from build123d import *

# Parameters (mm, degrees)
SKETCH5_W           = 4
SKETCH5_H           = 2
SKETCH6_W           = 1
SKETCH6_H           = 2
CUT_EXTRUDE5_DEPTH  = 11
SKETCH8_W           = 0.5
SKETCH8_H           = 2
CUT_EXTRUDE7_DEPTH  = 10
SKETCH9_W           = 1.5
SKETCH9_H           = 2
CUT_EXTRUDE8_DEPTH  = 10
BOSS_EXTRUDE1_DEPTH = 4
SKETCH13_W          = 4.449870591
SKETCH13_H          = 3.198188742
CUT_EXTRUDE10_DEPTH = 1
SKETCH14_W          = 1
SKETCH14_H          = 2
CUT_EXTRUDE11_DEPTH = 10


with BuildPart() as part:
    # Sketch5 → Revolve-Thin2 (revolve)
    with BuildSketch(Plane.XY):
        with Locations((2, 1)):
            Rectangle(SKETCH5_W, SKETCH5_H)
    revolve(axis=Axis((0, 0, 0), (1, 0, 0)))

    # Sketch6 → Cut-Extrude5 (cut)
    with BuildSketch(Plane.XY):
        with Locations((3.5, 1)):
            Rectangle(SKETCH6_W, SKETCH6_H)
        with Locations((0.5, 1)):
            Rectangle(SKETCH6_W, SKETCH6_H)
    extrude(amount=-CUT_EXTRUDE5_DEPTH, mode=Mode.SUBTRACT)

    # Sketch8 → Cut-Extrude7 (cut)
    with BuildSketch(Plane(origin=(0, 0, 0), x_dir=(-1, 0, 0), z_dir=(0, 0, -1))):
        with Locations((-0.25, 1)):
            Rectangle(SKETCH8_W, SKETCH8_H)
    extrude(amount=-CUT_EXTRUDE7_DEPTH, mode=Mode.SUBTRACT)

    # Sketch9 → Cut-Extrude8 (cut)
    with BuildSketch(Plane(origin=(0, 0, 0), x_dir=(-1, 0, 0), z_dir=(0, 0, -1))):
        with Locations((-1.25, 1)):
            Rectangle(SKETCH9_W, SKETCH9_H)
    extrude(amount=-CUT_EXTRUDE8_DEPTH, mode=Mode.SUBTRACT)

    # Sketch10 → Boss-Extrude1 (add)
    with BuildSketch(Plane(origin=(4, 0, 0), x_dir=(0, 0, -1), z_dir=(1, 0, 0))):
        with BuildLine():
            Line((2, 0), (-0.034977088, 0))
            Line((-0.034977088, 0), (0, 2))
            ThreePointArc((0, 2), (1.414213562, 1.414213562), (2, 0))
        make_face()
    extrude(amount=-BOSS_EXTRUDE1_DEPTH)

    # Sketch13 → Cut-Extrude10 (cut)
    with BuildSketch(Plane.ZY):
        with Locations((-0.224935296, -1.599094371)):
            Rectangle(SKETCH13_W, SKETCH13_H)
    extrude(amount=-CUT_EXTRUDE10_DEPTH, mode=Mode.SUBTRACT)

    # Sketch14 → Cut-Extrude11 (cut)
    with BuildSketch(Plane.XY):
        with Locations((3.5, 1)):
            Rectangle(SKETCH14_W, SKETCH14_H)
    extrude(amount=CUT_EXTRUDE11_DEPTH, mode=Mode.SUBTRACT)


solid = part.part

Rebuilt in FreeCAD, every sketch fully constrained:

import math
import FreeCAD as App
import Part
import Sketcher

V = App.Vector
Q = App.Units.Quantity


def add_polygon(sketch, points):
    """Adds a closed chain of lines whose ends are joined by coincident constraints."""
    first, n = sketch.GeometryCount, len(points)
    for a, b in zip(points, points[1:] + points[:1]):
        sketch.addGeometry(Part.LineSegment(App.Vector(*a, 0), App.Vector(*b, 0)), False)
    for i in range(n):
        sketch.addConstraint(Sketcher.Constraint("Coincident", first + i, 2, first + (i + 1) % n, 1))

doc = App.newDocument("Part")
body = doc.addObject("PartDesign::Body", "Body")

sketch1 = body.newObject("Sketcher::SketchObject", "Sketch")
sketch1.AttachmentSupport = (doc.getObject("XY_Plane"), [""])
sketch1.MapMode = "FlatFace"
add_polygon(sketch1, [(0, 2), (0, 0), (4, 0), (4, 2)])
sketch1.addConstraint([
    Sketcher.Constraint("Vertical", 0),
    Sketcher.Constraint("Horizontal", 1),
    Sketcher.Constraint("Vertical", 2),
    Sketcher.Constraint("Horizontal", 3),
    Sketcher.Constraint("Coincident", 0, 2, -1, 1),
    Sketcher.Constraint("DistanceX", 1, 1, 1, 2, Q("4 mm")),
    Sketcher.Constraint("DistanceY", 0, 2, 0, 1, Q("2 mm")),
])
revolution = body.newObject("PartDesign::Revolution", "Revolution")
revolution.Profile = sketch1
revolution.ReferenceAxis = (sketch1, ["H_Axis"])
revolution.Angle = 360

sketch2 = body.newObject("Sketcher::SketchObject", "Sketch001")
sketch2.AttachmentSupport = (doc.getObject("XY_Plane"), [""])
sketch2.MapMode = "FlatFace"
add_polygon(sketch2, [(3, 2), (3, 0), (4, 0), (4, 2)])
add_polygon(sketch2, [(0, 2), (0, 0), (1, 0), (1, 2)])
sketch2.addConstraint([
    Sketcher.Constraint("Vertical", 0),
    Sketcher.Constraint("Horizontal", 1),
    Sketcher.Constraint("Vertical", 2),
    Sketcher.Constraint("Horizontal", 3),
    Sketcher.Constraint("Vertical", 4),
    Sketcher.Constraint("Horizontal", 5),
    Sketcher.Constraint("Vertical", 6),
    Sketcher.Constraint("Horizontal", 7),
    Sketcher.Constraint("Coincident", 4, 2, -1, 1),
    Sketcher.Constraint("PointOnObject", 0, 2, -1),
    Sketcher.Constraint("Horizontal", 3, 2, 6, 2),
    Sketcher.Constraint("Equal", 3, 5),
    Sketcher.Constraint("DistanceX", 1, 1, 1, 2, Q("1 mm")),
    Sketcher.Constraint("DistanceY", 0, 2, 0, 1, Q("2 mm")),
    Sketcher.Constraint("DistanceX", -1, 1, 0, 2, Q("3 mm")),
])
pocket1 = body.newObject("PartDesign::Pocket", "Pocket")
pocket1.Profile = sketch2
pocket1.Length = 11

sketch3 = body.newObject("Sketcher::SketchObject", "Sketch002")
sketch3.AttachmentSupport = (doc.getObject("XY_Plane"), [""])
sketch3.MapMode = "FlatFace"
add_polygon(sketch3, [(0.5, 2), (0.5, 0), (0, 0), (0, 2)])
sketch3.addConstraint([
    Sketcher.Constraint("Vertical", 0),
    Sketcher.Constraint("Horizontal", 1),
    Sketcher.Constraint("Vertical", 2),
    Sketcher.Constraint("Horizontal", 3),
    Sketcher.Constraint("Coincident", 1, 2, -1, 1),
    Sketcher.Constraint("DistanceY", 0, 2, 0, 1, Q("2 mm")),
    Sketcher.Constraint("DistanceX", 1, 2, 1, 1, Q("0.5 mm")),
])
pocket2 = body.newObject("PartDesign::Pocket", "Pocket001")
pocket2.Profile = sketch3
pocket2.Length = 10
pocket2.Reversed = True

sketch4 = body.newObject("Sketcher::SketchObject", "Sketch003")
sketch4.AttachmentSupport = (doc.getObject("XY_Plane"), [""])
sketch4.MapMode = "FlatFace"
add_polygon(sketch4, [(2, 2), (2, 0), (0.5, 0), (0.5, 2)])
sketch4.addConstraint([
    Sketcher.Constraint("Vertical", 0),
    Sketcher.Constraint("Horizontal", 1),
    Sketcher.Constraint("Vertical", 2),
    Sketcher.Constraint("Horizontal", 3),
    Sketcher.Constraint("PointOnObject", 0, 2, -1),
    Sketcher.Constraint("DistanceY", 0, 2, 0, 1, Q("2 mm")),
    Sketcher.Constraint("DistanceX", 1, 2, 1, 1, Q("1.5 mm")),
    Sketcher.Constraint("DistanceX", -1, 1, 0, 2, Q("2 mm")),
])
pocket3 = body.newObject("PartDesign::Pocket", "Pocket002")
pocket3.Profile = sketch4
pocket3.Length = 10
pocket3.Reversed = True

sketch5 = body.newObject("Sketcher::SketchObject", "Sketch004")
sketch5.AttachmentSupport = (doc.getObject("YZ_Plane"), [""])
sketch5.MapMode = "FlatFace"
sketch5.AttachmentOffset = App.Placement(V(0, 0, 4), App.Rotation())
sketch5.addGeometry([
    Part.LineSegment(V(0, 0.034977, 0), V(0, -2, 0)),
    Part.ArcOfCircle(Part.Circle(V(0, 0, 0), V(0, 0, 1), 2), math.radians(-90), math.radians(0)),
    Part.LineSegment(V(2, 0, 0), V(0, 0.034977, 0)),
], False)
sketch5.addConstraint([
    Sketcher.Constraint("Coincident", 0, 2, 1, 1),
    Sketcher.Constraint("Coincident", 1, 2, 2, 1),
    Sketcher.Constraint("Coincident", 2, 2, 0, 1),
    Sketcher.Constraint("Vertical", 0),
    Sketcher.Constraint("Coincident", 1, 3, -1, 1),
    Sketcher.Constraint("PointOnObject", 0, 2, -2),
    Sketcher.Constraint("PointOnObject", 1, 2, -1),
    Sketcher.Constraint("Radius", 1, Q("2 mm")),
    Sketcher.Constraint("DistanceY", 0, 2, 0, 1, Q("2.034977 mm")),
])
pad1 = body.newObject("PartDesign::Pad", "Pad")
pad1.Profile = sketch5
pad1.Length = 4
pad1.Reversed = True

sketch6 = body.newObject("Sketcher::SketchObject", "Sketch005")
sketch6.AttachmentSupport = (doc.getObject("YZ_Plane"), [""])
sketch6.MapMode = "FlatFace"
add_polygon(sketch6, [(0, -2.449871), (-3.198189, -2.449871), (-3.198189, 2), (0, 2)])
sketch6.addConstraint([
    Sketcher.Constraint("Horizontal", 0),
    Sketcher.Constraint("Vertical", 1),
    Sketcher.Constraint("Horizontal", 2),
    Sketcher.Constraint("Vertical", 3),
    Sketcher.Constraint("PointOnObject", 2, 2, -2),
    Sketcher.Constraint("DistanceY", -1, 1, 1, 2, Q("2 mm")),
    Sketcher.Constraint("DistanceX", 0, 2, 0, 1, Q("3.198189 mm")),
    Sketcher.Constraint("DistanceY", 1, 1, 1, 2, Q("4.449871 mm")),
])
pocket4 = body.newObject("PartDesign::Pocket", "Pocket003")
pocket4.Profile = sketch6
pocket4.Length = 1
pocket4.Reversed = True

sketch7 = body.newObject("Sketcher::SketchObject", "Sketch006")
sketch7.AttachmentSupport = (doc.getObject("XY_Plane"), [""])
sketch7.MapMode = "FlatFace"
add_polygon(sketch7, [(3, 2), (3, 0), (4, 0), (4, 2)])
sketch7.addConstraint([
    Sketcher.Constraint("Vertical", 0),
    Sketcher.Constraint("Horizontal", 1),
    Sketcher.Constraint("Vertical", 2),
    Sketcher.Constraint("Horizontal", 3),
    Sketcher.Constraint("PointOnObject", 0, 2, -1),
    Sketcher.Constraint("DistanceX", 1, 1, 1, 2, Q("1 mm")),
    Sketcher.Constraint("DistanceY", 0, 2, 0, 1, Q("2 mm")),
    Sketcher.Constraint("DistanceX", -1, 1, 0, 2, Q("3 mm")),
])
pocket5 = body.newObject("PartDesign::Pocket", "Pocket004")
pocket5.Profile = sketch7
pocket5.Length = 10
pocket5.Reversed = True

doc.recompute()
